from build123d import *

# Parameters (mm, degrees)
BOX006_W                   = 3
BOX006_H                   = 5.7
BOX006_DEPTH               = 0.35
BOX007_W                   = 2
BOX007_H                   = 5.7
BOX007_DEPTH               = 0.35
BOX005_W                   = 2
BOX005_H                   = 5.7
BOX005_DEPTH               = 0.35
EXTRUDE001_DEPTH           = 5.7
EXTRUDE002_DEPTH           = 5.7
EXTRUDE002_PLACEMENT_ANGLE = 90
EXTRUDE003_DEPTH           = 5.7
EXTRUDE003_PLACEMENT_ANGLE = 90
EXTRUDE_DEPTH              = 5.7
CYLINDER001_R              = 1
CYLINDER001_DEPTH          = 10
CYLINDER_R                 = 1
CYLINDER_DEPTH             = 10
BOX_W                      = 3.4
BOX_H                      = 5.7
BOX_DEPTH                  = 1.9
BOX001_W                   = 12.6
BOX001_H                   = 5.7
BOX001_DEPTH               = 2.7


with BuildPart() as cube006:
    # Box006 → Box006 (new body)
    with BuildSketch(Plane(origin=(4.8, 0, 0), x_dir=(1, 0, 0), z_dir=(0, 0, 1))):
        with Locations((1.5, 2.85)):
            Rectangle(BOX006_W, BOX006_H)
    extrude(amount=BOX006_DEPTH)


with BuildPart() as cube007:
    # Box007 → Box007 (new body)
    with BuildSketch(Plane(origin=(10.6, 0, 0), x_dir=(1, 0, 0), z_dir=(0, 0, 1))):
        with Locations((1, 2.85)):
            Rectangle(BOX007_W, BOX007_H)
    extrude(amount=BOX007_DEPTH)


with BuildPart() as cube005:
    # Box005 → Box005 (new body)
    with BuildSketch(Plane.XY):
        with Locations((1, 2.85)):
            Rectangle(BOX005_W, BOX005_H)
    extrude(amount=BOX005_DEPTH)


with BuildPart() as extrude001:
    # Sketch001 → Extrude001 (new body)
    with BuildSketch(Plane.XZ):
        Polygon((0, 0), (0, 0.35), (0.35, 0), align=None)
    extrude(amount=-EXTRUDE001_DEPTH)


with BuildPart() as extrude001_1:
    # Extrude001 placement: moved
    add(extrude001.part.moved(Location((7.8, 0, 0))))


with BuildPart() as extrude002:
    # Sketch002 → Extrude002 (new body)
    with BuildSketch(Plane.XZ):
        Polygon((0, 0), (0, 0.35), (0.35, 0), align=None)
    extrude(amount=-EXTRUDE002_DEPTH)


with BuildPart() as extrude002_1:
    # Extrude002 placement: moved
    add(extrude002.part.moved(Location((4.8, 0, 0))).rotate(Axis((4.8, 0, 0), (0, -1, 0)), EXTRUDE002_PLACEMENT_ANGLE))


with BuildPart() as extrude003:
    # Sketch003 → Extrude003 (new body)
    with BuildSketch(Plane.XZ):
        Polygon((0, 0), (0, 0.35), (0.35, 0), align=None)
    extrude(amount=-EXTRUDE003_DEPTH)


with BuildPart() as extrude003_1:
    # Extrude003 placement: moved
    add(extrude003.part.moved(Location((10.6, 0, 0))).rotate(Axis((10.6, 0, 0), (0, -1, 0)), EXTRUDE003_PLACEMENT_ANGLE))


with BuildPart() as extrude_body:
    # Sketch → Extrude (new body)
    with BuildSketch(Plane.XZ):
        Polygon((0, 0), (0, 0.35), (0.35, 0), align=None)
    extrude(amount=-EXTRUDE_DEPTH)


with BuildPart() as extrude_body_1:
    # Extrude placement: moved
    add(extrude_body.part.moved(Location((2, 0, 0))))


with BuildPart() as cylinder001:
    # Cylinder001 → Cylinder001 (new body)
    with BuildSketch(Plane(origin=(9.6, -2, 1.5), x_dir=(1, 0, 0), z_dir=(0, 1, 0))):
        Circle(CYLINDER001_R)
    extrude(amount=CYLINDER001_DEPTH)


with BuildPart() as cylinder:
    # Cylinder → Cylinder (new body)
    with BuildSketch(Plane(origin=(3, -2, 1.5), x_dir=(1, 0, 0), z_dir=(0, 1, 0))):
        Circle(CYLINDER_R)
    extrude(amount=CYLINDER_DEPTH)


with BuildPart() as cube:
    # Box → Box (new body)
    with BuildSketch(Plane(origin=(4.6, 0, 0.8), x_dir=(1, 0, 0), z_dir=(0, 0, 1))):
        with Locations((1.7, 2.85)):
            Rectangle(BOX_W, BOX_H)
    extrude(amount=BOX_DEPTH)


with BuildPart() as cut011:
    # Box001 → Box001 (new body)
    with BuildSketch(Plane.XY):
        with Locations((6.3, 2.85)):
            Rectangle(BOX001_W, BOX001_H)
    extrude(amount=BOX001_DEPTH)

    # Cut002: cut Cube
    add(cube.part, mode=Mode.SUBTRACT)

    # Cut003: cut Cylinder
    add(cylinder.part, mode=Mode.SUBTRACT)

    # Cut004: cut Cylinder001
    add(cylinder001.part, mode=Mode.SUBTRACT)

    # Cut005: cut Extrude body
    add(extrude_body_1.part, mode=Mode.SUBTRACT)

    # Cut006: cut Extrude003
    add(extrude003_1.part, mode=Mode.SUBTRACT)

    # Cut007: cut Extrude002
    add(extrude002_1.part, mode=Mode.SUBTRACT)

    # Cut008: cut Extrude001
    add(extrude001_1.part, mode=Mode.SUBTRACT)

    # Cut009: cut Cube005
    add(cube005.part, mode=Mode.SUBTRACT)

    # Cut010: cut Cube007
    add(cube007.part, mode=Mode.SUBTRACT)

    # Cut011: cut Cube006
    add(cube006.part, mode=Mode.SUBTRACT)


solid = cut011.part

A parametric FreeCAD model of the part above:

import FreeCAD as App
import Part
import Sketcher
Q = App.Units.Quantity


def add_polygon(sketch, points):
    """Adds a closed chain of lines whose ends are joined by coincident constraints."""
    first, n = sketch.GeometryCount, len(points)
    for a, b in zip(points, points[1:] + points[:1]):
        sketch.addGeometry(Part.LineSegment(App.Vector(*a, 0), App.Vector(*b, 0)), False)
    for i in range(n):
        sketch.addConstraint(Sketcher.Constraint("Coincident", first + i, 2, first + (i + 1) % n, 1))

doc = App.newDocument("Part")
body = doc.addObject("PartDesign::Body", "Body")

# Sketch on XY plane
sketch1 = doc.addObject("Sketcher::SketchObject", "Sketch")
body.addObject(sketch1)
sketch1.AttachmentSupport = (doc.XY_Plane, [""])
sketch1.MapMode = "FlatFace"
add_polygon(sketch1, [(4.8, 5.7), (4.8, 0), (7.8, 0), (7.8, 5.7)])  # lines 0-3
sketch1.addConstraint([
    Sketcher.Constraint("Vertical", 0),
    Sketcher.Constraint("Horizontal", 1),
    Sketcher.Constraint("Vertical", 2),
    Sketcher.Constraint("Horizontal", 3),
    Sketcher.Constraint("PointOnObject", 0, 2, -1),
    Sketcher.Constraint("DistanceX", 1, 1, 1, 2, Q("3 mm")),
    Sketcher.Constraint("DistanceY", 0, 2, 0, 1, Q("5.7 mm")),
    Sketcher.Constraint("DistanceX", -1, 1, 0, 2, Q("4.8 mm")),
])
pad1 = doc.addObject("PartDesign::Pad", "Pad")
body.addObject(pad1)
pad1.Profile = sketch1
pad1.Length = 0.35
body2 = doc.addObject("PartDesign::Body", "Body001")

# Sketch on XY plane
sketch2 = doc.addObject("Sketcher::SketchObject", "Sketch001")
body2.addObject(sketch2)
sketch2.AttachmentSupport = (doc.getObject("XY_Plane001"), [""])
sketch2.MapMode = "FlatFace"
add_polygon(sketch2, [(10.6, 5.7), (10.6, 0), (12.6, 0), (12.6, 5.7)])  # lines 0-3
sketch2.addConstraint([
    Sketcher.Constraint("Vertical", 0),
    Sketcher.Constraint("Horizontal", 1),
    Sketcher.Constraint("Vertical", 2),
    Sketcher.Constraint("Horizontal", 3),
    Sketcher.Constraint("PointOnObject", 0, 2, -1),
    Sketcher.Constraint("DistanceX", 1, 1, 1, 2, Q("2 mm")),
    Sketcher.Constraint("DistanceY", 0, 2, 0, 1, Q("5.7 mm")),
    Sketcher.Constraint("DistanceX", -1, 1, 0, 2, Q("10.6 mm")),
])
pad2 = doc.addObject("PartDesign::Pad", "Pad001")
body2.addObject(pad2)
pad2.Profile = sketch2
pad2.Length = 0.35
body3 = doc.addObject("PartDesign::Body", "Body002")

# Sketch on XY plane
sketch3 = doc.addObject("Sketcher::SketchObject", "Sketch002")
body3.addObject(sketch3)
sketch3.AttachmentSupport = (doc.getObject("XY_Plane002"), [""])
sketch3.MapMode = "FlatFace"
add_polygon(sketch3, [(0, 5.7), (0, 0), (2, 0), (2, 5.7)])  # lines 0-3
sketch3.addConstraint([
    Sketcher.Constraint("Vertical", 0),
    Sketcher.Constraint("Horizontal", 1),
    Sketcher.Constraint("Vertical", 2),
    Sketcher.Constraint("Horizontal", 3),
    Sketcher.Constraint("Coincident", 0, 2, -1, 1),
    Sketcher.Constraint("DistanceX", 1, 1, 1, 2, Q("2 mm")),
    Sketcher.Constraint("DistanceY", 0, 2, 0, 1, Q("5.7 mm")),
])
pad3 = doc.addObject("PartDesign::Pad", "Pad002")
body3.addObject(pad3)
pad3.Profile = sketch3
pad3.Length = 0.35
body4 = doc.addObject("PartDesign::Body", "Body003")

# Sketch on XZ plane
sketch4 = doc.addObject("Sketcher::SketchObject", "Sketch003")
body4.addObject(sketch4)
sketch4.AttachmentSupport = (doc.getObject("XZ_Plane003"), [""])
sketch4.MapMode = "FlatFace"
add_polygon(sketch4, [(0, 0.35), (0, 0), (0.35, 0)])  # lines 0-2
sketch4.addConstraint([
    Sketcher.Constraint("Vertical", 0),
    Sketcher.Constraint("Horizontal", 1),
    Sketcher.Constraint("Coincident", 0, 2, -1, 1),
    Sketcher.Constraint("Equal", 1, 0),
    Sketcher.Constraint("DistanceX", 1, 1, 1, 2, Q("0.35 mm")),
])
pad4 = doc.addObject("PartDesign::Pad", "Pad003")
body4.addObject(pad4)
pad4.Profile = sketch4
pad4.Length = 5.7
pad4.Reversed = True
body5 = doc.addObject("PartDesign::Body", "Body004")
doc.recompute()

body4.Placement = App.Placement(App.Vector(7.8, 0, 0), App.Rotation(App.Vector(0, 0, 1), 0))
boolean = doc.addObject("PartDesign::Boolean", "Boolean")
body5.addObject(boolean)
boolean.Type = "Fuse"
boolean.addObjects([body4])
body6 = doc.addObject("PartDesign::Body", "Body005")

# Sketch on XZ plane
sketch5 = doc.addObject("Sketcher::SketchObject", "Sketch004")
body6.addObject(sketch5)
sketch5.AttachmentSupport = (doc.getObject("XZ_Plane005"), [""])
sketch5.MapMode = "FlatFace"
add_polygon(sketch5, [(0, 0.35), (0, 0), (0.35, 0)])  # lines 0-2
sketch5.addConstraint([
    Sketcher.Constraint("Vertical", 0),
    Sketcher.Constraint("Horizontal", 1),
    Sketcher.Constraint("Coincident", 0, 2, -1, 1),
    Sketcher.Constraint("Equal", 1, 0),
    Sketcher.Constraint("DistanceX", 1, 1, 1, 2, Q("0.35 mm")),
])
pad5 = doc.addObject("PartDesign::Pad", "Pad004")
body6.addObject(pad5)
pad5.Profile = sketch5
pad5.Length = 5.7
pad5.Reversed = True
body7 = doc.addObject("PartDesign::Body", "Body006")
doc.recompute()

body6.Placement = App.Placement(App.Vector(4.8, 0, 0), App.Rotation(App.Vector(0, -1, 0), 90))
boolean2 = doc.addObject("PartDesign::Boolean", "Boolean001")
body7.addObject(boolean2)
boolean2.Type = "Fuse"
boolean2.addObjects([body6])
body8 = doc.addObject("PartDesign::Body", "Body007")

# Sketch on XZ plane
sketch6 = doc.addObject("Sketcher::SketchObject", "Sketch005")
body8.addObject(sketch6)
sketch6.AttachmentSupport = (doc.getObject("XZ_Plane007"), [""])
sketch6.MapMode = "FlatFace"
add_polygon(sketch6, [(0, 0.35), (0, 0), (0.35, 0)])  # lines 0-2
sketch6.addConstraint([
    Sketcher.Constraint("Vertical", 0),
    Sketcher.Constraint("Horizontal", 1),
    Sketcher.Constraint("Coincident", 0, 2, -1, 1),
    Sketcher.Constraint("Equal", 1, 0),
    Sketcher.Constraint("DistanceX", 1, 1, 1, 2, Q("0.35 mm")),
])
pad6 = doc.addObject("PartDesign::Pad", "Pad005")
body8.addObject(pad6)
pad6.Profile = sketch6
pad6.Length = 5.7
pad6.Reversed = True
body9 = doc.addObject("PartDesign::Body", "Body008")
doc.recompute()

body8.Placement = App.Placement(App.Vector(10.6, 0, 0), App.Rotation(App.Vector(0, -1, 0), 90))
boolean3 = doc.addObject("PartDesign::Boolean", "Boolean002")
body9.addObject(boolean3)
boolean3.Type = "Fuse"
boolean3.addObjects([body8])
body10 = doc.addObject("PartDesign::Body", "Body009")

# Sketch on XZ plane
sketch7 = doc.addObject("Sketcher::SketchObject", "Sketch006")
body10.addObject(sketch7)
sketch7.AttachmentSupport = (doc.getObject("XZ_Plane009"), [""])
sketch7.MapMode = "FlatFace"
add_polygon(sketch7, [(0, 0.35), (0, 0), (0.35, 0)])  # lines 0-2
sketch7.addConstraint([
    Sketcher.Constraint("Vertical", 0),
    Sketcher.Constraint("Horizontal", 1),
    Sketcher.Constraint("Coincident", 0, 2, -1, 1),
    Sketcher.Constraint("Equal", 1, 0),
    Sketcher.Constraint("DistanceX", 1, 1, 1, 2, Q("0.35 mm")),
])
pad7 = doc.addObject("PartDesign::Pad", "Pad006")
body10.addObject(pad7)
pad7.Profile = sketch7
pad7.Length = 5.7
pad7.Reversed = True
body11 = doc.addObject("PartDesign::Body", "Body010")
doc.recompute()

body10.Placement = App.Placement(App.Vector(2, 0, 0), App.Rotation(App.Vector(0, 0, 1), 0))
boolean4 = doc.addObject("PartDesign::Boolean", "Boolean003")
body11.addObject(boolean4)
boolean4.Type = "Fuse"
boolean4.addObjects([body10])
body12 = doc.addObject("PartDesign::Body", "Body011")

# Sketch on XZ plane
sketch8 = doc.addObject("Sketcher::SketchObject", "Sketch007")
body12.addObject(sketch8)
sketch8.AttachmentSupport = (doc.getObject("XZ_Plane011"), [""])
sketch8.MapMode = "FlatFace"
sketch8.AttachmentOffset = App.Placement(App.Vector(0, 0, 2), App.Rotation())
sketch8.addGeometry(Part.Circle(App.Vector(9.6, 1.5, 0), App.Vector(0, 0, 1), 1), False)
sketch8.addConstraint([
    Sketcher.Constraint("Diameter", 0, Q("2 mm")),
    Sketcher.Constraint("DistanceX", -1, 1, 0, 3, Q("9.6 mm")),
    Sketcher.Constraint("DistanceY", -1, 1, 0, 3, Q("1.5 mm")),
])
pad8 = doc.addObject("PartDesign::Pad", "Pad007")
body12.addObject(pad8)
pad8.Profile = sketch8
pad8.Length = 10
pad8.Reversed = True
body13 = doc.addObject("PartDesign::Body", "Body012")

# Sketch on XZ plane
sketch9 = doc.addObject("Sketcher::SketchObject", "Sketch008")
body13.addObject(sketch9)
sketch9.AttachmentSupport = (doc.getObject("XZ_Plane012"), [""])
sketch9.MapMode = "FlatFace"
sketch9.AttachmentOffset = App.Placement(App.Vector(0, 0, 2), App.Rotation())
sketch9.addGeometry(Part.Circle(App.Vector(3, 1.5, 0), App.Vector(0, 0, 1), 1), False)
sketch9.addConstraint([
    Sketcher.Constraint("Diameter", 0, Q("2 mm")),
    Sketcher.Constraint("DistanceX", -1, 1, 0, 3, Q("3 mm")),
    Sketcher.Constraint("DistanceY", -1, 1, 0, 3, Q("1.5 mm")),
])
pad9 = doc.addObject("PartDesign::Pad", "Pad008")
body13.addObject(pad9)
pad9.Profile = sketch9
pad9.Length = 10
pad9.Reversed = True
body14 = doc.addObject("PartDesign::Body", "Body013")

# Sketch on XY plane
sketch10 = doc.addObject("Sketcher::SketchObject", "Sketch009")
body14.addObject(sketch10)
sketch10.AttachmentSupport = (doc.getObject("XY_Plane013"), [""])
sketch10.MapMode = "FlatFace"
sketch10.AttachmentOffset = App.Placement(App.Vector(0, 0, 0.8), App.Rotation())
add_polygon(sketch10, [(4.6, 5.7), (4.6, 0), (8, 0), (8, 5.7)])  # lines 0-3
sketch10.addConstraint([
    Sketcher.Constraint("Vertical", 0),
    Sketcher.Constraint("Horizontal", 1),
    Sketcher.Constraint("Vertical", 2),
    Sketcher.Constraint("Horizontal", 3),
    Sketcher.Constraint("PointOnObject", 0, 2, -1),
    Sketcher.Constraint("DistanceX", 1, 1, 1, 2, Q("3.4 mm")),
    Sketcher.Constraint("DistanceY", 0, 2, 0, 1, Q("5.7 mm")),
    Sketcher.Constraint("DistanceX", -1, 1, 1, 2, Q("8 mm")),
])
pad10 = doc.addObject("PartDesign::Pad", "Pad009")
body14.addObject(pad10)
pad10.Profile = sketch10
pad10.Length = 1.9
body15 = doc.addObject("PartDesign::Body", "Body014")

# Sketch on XY plane
sketch11 = doc.addObject("Sketcher::SketchObject", "Sketch010")
body15.addObject(sketch11)
sketch11.AttachmentSupport = (doc.getObject("XY_Plane014"), [""])
sketch11.MapMode = "FlatFace"
add_polygon(sketch11, [(0, 6), (0, 0), (13, 0), (13, 6)])  # lines 0-3
sketch11.addConstraint([
    Sketcher.Constraint("Vertical", 0),
    Sketcher.Constraint("Horizontal", 1),
    Sketcher.Constraint("Vertical", 2),
    Sketcher.Constraint("Horizontal", 3),
    Sketcher.Constraint("Coincident", 0, 2, -1, 1),
    Sketcher.Constraint("DistanceX", 1, 1, 1, 2, Q("12.6 mm")),
    Sketcher.Constraint("DistanceY", 0, 2, 0, 1, Q("5.7 mm")),
])
pad11 = doc.addObject("PartDesign::Pad", "Pad010")
body15.addObject(pad11)
pad11.Profile = sketch11
pad11.Length = 2.7
doc.recompute()

boolean5 = doc.addObject("PartDesign::Boolean", "Boolean004")
body15.addObject(boolean5)
boolean5.Type = "Cut"
boolean5.addObjects([body14])
doc.recompute()

boolean6 = doc.addObject("PartDesign::Boolean", "Boolean005")
body15.addObject(boolean6)
boolean6.Type = "Cut"
boolean6.addObjects([body13])
doc.recompute()

boolean7 = doc.addObject("PartDesign::Boolean", "Boolean006")
body15.addObject(boolean7)
boolean7.Type = "Cut"
boolean7.addObjects([body12])
doc.recompute()

boolean8 = doc.addObject("PartDesign::Boolean", "Boolean007")
body15.addObject(boolean8)
boolean8.Type = "Cut"
boolean8.addObjects([body11])
doc.recompute()

boolean9 = doc.addObject("PartDesign::Boolean", "Boolean008")
body15.addObject(boolean9)
boolean9.Type = "Cut"
boolean9.addObjects([body9])
doc.recompute()

boolean10 = doc.addObject("PartDesign::Boolean", "Boolean009")
body15.addObject(boolean10)
boolean10.Type = "Cut"
boolean10.addObjects([body7])
doc.recompute()

boolean11 = doc.addObject("PartDesign::Boolean", "Boolean010")
body15.addObject(boolean11)
boolean11.Type = "Cut"
boolean11.addObjects([body5])
doc.recompute()

boolean12 = doc.addObject("PartDesign::Boolean", "Boolean011")
body15.addObject(boolean12)
boolean12.Type = "Cut"
boolean12.addObjects([body3])
doc.recompute()

boolean13 = doc.addObject("PartDesign::Boolean", "Boolean012")
body15.addObject(boolean13)
boolean13.Type = "Cut"
boolean13.addObjects([body2])
doc.recompute()

boolean14 = doc.addObject("PartDesign::Boolean", "Boolean013")
body15.addObject(boolean14)
boolean14.Type = "Cut"
boolean14.addObjects([body])

doc.recompute()
